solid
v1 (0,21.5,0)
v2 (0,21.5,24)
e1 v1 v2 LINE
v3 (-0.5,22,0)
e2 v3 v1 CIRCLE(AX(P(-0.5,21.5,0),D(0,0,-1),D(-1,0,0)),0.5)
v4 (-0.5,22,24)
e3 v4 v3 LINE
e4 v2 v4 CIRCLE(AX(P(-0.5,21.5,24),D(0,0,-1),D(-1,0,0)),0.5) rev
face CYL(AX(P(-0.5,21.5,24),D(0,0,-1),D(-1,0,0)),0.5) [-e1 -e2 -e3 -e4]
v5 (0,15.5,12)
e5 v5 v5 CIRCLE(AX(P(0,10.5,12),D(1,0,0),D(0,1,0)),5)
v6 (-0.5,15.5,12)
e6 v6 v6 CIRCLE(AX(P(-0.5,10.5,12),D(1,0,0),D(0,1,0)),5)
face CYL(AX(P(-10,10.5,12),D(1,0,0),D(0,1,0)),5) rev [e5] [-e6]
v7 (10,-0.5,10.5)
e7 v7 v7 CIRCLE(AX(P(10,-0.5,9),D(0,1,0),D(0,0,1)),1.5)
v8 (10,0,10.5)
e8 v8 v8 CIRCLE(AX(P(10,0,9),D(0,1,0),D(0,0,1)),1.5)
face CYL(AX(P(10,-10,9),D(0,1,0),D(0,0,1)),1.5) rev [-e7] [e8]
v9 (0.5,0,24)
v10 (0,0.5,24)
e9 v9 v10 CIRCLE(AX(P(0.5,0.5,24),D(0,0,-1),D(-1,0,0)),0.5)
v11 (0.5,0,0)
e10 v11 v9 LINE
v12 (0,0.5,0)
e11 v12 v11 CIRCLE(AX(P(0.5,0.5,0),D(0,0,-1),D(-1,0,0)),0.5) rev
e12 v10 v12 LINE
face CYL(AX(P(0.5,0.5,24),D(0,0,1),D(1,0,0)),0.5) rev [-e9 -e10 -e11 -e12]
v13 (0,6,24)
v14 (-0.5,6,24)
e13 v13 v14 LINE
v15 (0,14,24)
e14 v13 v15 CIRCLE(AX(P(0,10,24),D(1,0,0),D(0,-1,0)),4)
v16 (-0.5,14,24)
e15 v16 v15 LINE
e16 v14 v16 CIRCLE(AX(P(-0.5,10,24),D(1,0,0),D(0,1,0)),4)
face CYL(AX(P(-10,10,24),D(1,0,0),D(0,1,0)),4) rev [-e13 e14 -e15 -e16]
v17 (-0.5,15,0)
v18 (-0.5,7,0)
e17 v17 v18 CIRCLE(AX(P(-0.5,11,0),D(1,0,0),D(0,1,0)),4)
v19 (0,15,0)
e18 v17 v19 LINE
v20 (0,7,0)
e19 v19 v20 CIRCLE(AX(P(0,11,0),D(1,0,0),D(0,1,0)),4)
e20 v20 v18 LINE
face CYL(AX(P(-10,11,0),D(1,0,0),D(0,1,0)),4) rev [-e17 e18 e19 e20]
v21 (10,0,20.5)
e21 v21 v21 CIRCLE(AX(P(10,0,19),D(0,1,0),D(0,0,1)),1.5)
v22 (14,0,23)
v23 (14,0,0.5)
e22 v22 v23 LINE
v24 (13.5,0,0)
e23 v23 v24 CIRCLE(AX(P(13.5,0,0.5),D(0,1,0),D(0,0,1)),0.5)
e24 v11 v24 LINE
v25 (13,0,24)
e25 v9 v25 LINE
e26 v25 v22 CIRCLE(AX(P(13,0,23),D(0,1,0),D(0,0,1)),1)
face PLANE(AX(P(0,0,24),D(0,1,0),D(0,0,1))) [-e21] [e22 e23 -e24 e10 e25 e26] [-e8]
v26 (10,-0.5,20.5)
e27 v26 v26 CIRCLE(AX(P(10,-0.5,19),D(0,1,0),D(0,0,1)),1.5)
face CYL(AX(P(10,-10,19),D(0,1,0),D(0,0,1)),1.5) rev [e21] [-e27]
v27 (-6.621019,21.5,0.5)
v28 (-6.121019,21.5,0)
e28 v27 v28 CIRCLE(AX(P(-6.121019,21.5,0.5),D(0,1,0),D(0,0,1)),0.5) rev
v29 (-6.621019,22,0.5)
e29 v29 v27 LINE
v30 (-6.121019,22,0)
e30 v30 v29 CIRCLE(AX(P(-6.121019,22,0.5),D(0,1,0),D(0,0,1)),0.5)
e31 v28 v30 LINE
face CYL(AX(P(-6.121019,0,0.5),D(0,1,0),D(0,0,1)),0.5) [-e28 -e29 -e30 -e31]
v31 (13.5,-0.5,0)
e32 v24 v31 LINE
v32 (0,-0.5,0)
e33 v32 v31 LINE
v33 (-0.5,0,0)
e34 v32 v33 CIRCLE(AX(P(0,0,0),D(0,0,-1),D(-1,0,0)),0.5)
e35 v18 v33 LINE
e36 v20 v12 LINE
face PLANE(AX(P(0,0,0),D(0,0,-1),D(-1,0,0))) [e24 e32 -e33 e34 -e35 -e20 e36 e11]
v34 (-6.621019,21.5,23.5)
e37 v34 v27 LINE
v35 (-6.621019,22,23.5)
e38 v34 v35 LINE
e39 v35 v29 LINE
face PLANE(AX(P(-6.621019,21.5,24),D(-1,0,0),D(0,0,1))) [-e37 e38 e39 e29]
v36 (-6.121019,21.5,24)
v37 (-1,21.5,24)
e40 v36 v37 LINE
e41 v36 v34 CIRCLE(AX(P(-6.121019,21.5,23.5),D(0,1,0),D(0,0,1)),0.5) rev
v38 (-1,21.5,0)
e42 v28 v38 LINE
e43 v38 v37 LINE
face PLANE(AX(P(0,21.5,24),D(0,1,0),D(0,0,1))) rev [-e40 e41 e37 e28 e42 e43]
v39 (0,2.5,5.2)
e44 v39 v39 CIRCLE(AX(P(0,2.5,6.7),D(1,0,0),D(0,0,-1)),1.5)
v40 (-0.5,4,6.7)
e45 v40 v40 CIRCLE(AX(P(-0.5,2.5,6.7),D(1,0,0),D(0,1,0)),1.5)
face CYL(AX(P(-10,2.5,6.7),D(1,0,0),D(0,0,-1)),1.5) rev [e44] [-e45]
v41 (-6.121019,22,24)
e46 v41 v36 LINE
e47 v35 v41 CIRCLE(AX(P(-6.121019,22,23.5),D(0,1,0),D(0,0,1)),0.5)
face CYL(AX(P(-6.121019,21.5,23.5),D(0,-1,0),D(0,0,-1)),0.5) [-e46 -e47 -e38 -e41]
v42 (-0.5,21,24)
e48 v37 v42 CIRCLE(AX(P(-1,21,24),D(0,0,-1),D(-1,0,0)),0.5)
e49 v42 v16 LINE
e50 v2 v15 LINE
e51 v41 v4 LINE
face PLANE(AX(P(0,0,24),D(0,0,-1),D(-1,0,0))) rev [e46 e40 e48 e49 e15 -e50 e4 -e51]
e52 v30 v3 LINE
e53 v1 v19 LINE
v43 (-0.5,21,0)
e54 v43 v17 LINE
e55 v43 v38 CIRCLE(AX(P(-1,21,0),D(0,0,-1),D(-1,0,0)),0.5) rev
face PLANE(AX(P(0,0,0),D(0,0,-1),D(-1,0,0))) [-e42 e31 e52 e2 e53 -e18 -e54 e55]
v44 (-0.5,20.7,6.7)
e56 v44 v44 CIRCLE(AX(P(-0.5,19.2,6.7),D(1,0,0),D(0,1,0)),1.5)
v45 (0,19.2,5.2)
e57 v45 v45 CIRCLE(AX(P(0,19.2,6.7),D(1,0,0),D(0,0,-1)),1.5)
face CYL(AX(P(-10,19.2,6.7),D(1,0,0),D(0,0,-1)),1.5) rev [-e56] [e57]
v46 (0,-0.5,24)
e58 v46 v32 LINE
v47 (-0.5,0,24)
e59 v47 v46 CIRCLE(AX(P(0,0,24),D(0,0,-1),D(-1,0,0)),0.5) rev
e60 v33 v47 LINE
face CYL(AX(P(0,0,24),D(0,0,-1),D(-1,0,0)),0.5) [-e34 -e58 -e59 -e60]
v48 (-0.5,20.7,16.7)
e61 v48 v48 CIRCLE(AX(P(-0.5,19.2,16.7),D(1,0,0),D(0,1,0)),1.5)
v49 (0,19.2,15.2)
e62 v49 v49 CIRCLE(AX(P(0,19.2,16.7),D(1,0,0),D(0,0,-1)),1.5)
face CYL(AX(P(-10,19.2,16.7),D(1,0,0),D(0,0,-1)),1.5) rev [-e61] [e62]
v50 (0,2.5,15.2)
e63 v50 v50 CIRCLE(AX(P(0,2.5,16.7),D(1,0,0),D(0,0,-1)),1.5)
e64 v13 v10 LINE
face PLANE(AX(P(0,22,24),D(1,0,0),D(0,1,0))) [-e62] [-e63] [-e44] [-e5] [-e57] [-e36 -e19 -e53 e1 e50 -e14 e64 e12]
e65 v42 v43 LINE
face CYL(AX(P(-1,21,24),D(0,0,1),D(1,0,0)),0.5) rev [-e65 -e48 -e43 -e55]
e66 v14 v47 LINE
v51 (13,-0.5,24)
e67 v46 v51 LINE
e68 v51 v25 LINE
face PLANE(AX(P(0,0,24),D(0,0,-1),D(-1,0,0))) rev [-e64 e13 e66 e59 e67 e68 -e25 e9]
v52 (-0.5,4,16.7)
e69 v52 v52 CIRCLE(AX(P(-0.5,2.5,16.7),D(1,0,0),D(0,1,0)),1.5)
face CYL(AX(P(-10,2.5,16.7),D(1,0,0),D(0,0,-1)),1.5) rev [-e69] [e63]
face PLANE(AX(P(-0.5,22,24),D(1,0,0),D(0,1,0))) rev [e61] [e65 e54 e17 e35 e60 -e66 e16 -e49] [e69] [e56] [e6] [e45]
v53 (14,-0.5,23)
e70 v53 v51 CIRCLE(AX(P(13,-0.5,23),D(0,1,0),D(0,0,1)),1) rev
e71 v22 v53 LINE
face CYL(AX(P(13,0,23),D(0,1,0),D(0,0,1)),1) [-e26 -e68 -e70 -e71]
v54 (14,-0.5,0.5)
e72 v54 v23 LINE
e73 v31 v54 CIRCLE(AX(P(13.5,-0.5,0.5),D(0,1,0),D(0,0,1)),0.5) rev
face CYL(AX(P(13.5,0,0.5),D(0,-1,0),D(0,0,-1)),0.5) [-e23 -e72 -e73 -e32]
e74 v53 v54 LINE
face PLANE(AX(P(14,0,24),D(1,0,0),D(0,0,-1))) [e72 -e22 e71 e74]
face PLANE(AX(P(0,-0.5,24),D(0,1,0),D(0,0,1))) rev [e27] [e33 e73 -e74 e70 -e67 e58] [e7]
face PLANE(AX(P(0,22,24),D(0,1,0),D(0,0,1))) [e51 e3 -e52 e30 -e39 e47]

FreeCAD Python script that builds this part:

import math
import FreeCAD as App
import Part
import Sketcher


def edges_at(feature, points):
    """Names of the edges that pass closest to the given points."""
    edges = feature.Shape.Edges
    near = lambda p: min(range(len(edges)), key=lambda i: edges[i].distToShape(Part.Vertex(*p))[0])
    return sorted({f"Edge{near(p) + 1}" for p in points})

doc = App.newDocument("Part")
body = doc.addObject("PartDesign::Body", "Body")

# Sketch on XY plane
sketch1 = body.newObject("Sketcher::SketchObject", "Sketch")
sketch1.AttachmentSupport = (doc.getObject("XY_Plane"), [""])
sketch1.MapMode = "FlatFace"
sketch1.addGeometry(Part.LineSegment(App.Vector(0, 22, 0), App.Vector(-6.6, 22, 0)), False)
sketch1.addGeometry(Part.LineSegment(App.Vector(-6.6, 22, 0), App.Vector(-6.6, 21.5, 0)), False)
sketch1.addGeometry(Part.LineSegment(App.Vector(-6.6, 21.5, 0), App.Vector(-0.5, 21.5, 0)), False)
sketch1.addGeometry(Part.LineSegment(App.Vector(-0.5, 21.5, 0), App.Vector(-0.5, -0.5, 0)), False)
sketch1.addGeometry(Part.LineSegment(App.Vector(-0.5, -0.5, 0), App.Vector(14, -0.5, 0)), False)
sketch1.addGeometry(Part.LineSegment(App.Vector(14, -0.5, 0), App.Vector(14, 0, 0)), False)
sketch1.addGeometry(Part.LineSegment(App.Vector(14, 0, 0), App.Vector(0, 0, 0)), False)
sketch1.addGeometry(Part.LineSegment(App.Vector(0, 0, 0), App.Vector(0, 22, 0)), False)
sketch1.addConstraint(Sketcher.Constraint("Coincident", 0, 2, 1, 1))
sketch1.addConstraint(Sketcher.Constraint("Coincident", 1, 2, 2, 1))
sketch1.addConstraint(Sketcher.Constraint("Coincident", 2, 2, 3, 1))
sketch1.addConstraint(Sketcher.Constraint("Coincident", 3, 2, 4, 1))
sketch1.addConstraint(Sketcher.Constraint("Coincident", 4, 2, 5, 1))
sketch1.addConstraint(Sketcher.Constraint("Coincident", 5, 2, 6, 1))
sketch1.addConstraint(Sketcher.Constraint("Coincident", 6, 2, 7, 1))
sketch1.addConstraint(Sketcher.Constraint("Coincident", 7, 2, 0, 1))
sketch1.addConstraint(Sketcher.Constraint("Horizontal", 0))
sketch1.addConstraint(Sketcher.Constraint("Vertical", 1))
sketch1.addConstraint(Sketcher.Constraint("Horizontal", 2))
sketch1.addConstraint(Sketcher.Constraint("Vertical", 3))
sketch1.addConstraint(Sketcher.Constraint("Horizontal", 4))
sketch1.addConstraint(Sketcher.Constraint("Vertical", 5))
sketch1.addConstraint(Sketcher.Constraint("Horizontal", 6))
sketch1.addConstraint(Sketcher.Constraint("Vertical", 7))
sketch1.addConstraint(Sketcher.Constraint("Coincident", 6, 2, -1, 1))
sketch1.addConstraint(Sketcher.Constraint("Equal", 1, 5))
sketch1.addConstraint(Sketcher.Constraint("DistanceX", 6, 2, 6, 1, 14.0))
sketch1.addConstraint(Sketcher.Constraint("DistanceY", 3, 2, 3, 1, 22.0))
sketch1.addConstraint(Sketcher.Constraint("DistanceX", 4, 1, 4, 2, 14.5))
sketch1.addConstraint(Sketcher.Constraint("DistanceY", 1, 2, 1, 1, 0.5))
sketch1.addConstraint(Sketcher.Constraint("DistanceX", 0, 2, 0, 1, 6.621019))
pad1 = body.newObject("PartDesign::Pad", "Pad")
pad1.Profile = sketch1
pad1.Length = 24

# Sketch on XZ plane
sketch2 = body.newObject("Sketcher::SketchObject", "Sketch001")
sketch2.AttachmentSupport = (doc.getObject("XZ_Plane"), [""])
sketch2.MapMode = "FlatFace"
sketch2.addGeometry(Part.Circle(App.Vector(10, 19, 0), App.Vector(0, 0, 1), 1.5), False)
sketch2.addGeometry(Part.Circle(App.Vector(10, 9, 0), App.Vector(0, 0, 1), 1.5), False)
sketch2.addConstraint(Sketcher.Constraint("Equal", 0, 1))
sketch2.addConstraint(Sketcher.Constraint("Vertical", 0, 3, 1, 3))
sketch2.addConstraint(Sketcher.Constraint("Diameter", 0, 3.0))
sketch2.addConstraint(Sketcher.Constraint("DistanceX", -1, 1, 0, 3, 10.0))
sketch2.addConstraint(Sketcher.Constraint("DistanceY", -1, 1, 0, 3, 19.0))
sketch2.addConstraint(Sketcher.Constraint("DistanceY", -1, 1, 1, 3, 9.0))
pocket1 = body.newObject("PartDesign::Pocket", "Pocket")
pocket1.Profile = sketch2
pocket1.Length = 10
pocket1.Reversed = True

# Sketch on YZ plane
sketch3 = body.newObject("Sketcher::SketchObject", "Sketch002")
sketch3.AttachmentSupport = (doc.getObject("YZ_Plane"), [""])
sketch3.MapMode = "FlatFace"
sketch3.addGeometry(Part.Circle(App.Vector(19.2, 16.7, 0), App.Vector(0, 0, 1), 1.5), False)
sketch3.addGeometry(Part.Circle(App.Vector(2.5, 16.7, 0), App.Vector(0, 0, 1), 1.5), False)
sketch3.addGeometry(Part.Circle(App.Vector(19.2, 6.7, 0), App.Vector(0, 0, 1), 1.5), False)
sketch3.addGeometry(Part.Circle(App.Vector(2.5, 6.7, 0), App.Vector(0, 0, 1), 1.5), False)
sketch3.addConstraint(Sketcher.Constraint("Equal", 0, 1))
sketch3.addConstraint(Sketcher.Constraint("Equal", 1, 2))
sketch3.addConstraint(Sketcher.Constraint("Equal", 2, 3))
sketch3.addConstraint(Sketcher.Constraint("Horizontal", 0, 3, 1, 3))
sketch3.addConstraint(Sketcher.Constraint("Horizontal", 2, 3, 3, 3))
sketch3.addConstraint(Sketcher.Constraint("Vertical", 0, 3, 2, 3))
sketch3.addConstraint(Sketcher.Constraint("Vertical", 1, 3, 3, 3))
sketch3.addConstraint(Sketcher.Constraint("Diameter", 0, 3.0))
sketch3.addConstraint(Sketcher.Constraint("DistanceY", 2, 3, 0, 3, 10.0))
sketch3.addConstraint(Sketcher.Constraint("DistanceX", -1, 1, 0, 3, 19.2))
sketch3.addConstraint(Sketcher.Constraint("DistanceY", -1, 1, 0, 3, 16.7))
sketch3.addConstraint(Sketcher.Constraint("DistanceX", -1, 1, 1, 3, 2.5))
pocket2 = body.newObject("PartDesign::Pocket", "Pocket001")
pocket2.Profile = sketch3
pocket2.Length = 10
doc.recompute()

fillet = body.newObject("PartDesign::Fillet", "Fillet")
fillet.Base = (pocket2, edges_at(pocket2, [(14, -0.25, 24)]))
fillet.Radius = 1
doc.recompute()

fillet2 = body.newObject("PartDesign::Fillet", "Fillet001")
fillet2.Base = (fillet, edges_at(fillet, [
    (-0.5, -0.5, 12),
    (-0.5, 21.5, 12),
    (0, 0, 12),
    (-6.621, 21.75, 24),
    (-6.621, 21.75, 0),
    (14, -0.25, 0),
]))
fillet2.Radius = 0.5
doc.recompute()

fillet3 = body.newObject("PartDesign::Fillet", "Fillet002")
fillet3.Base = (fillet2, edges_at(fillet2, [(0, 22, 12)]))
fillet3.Radius = 0.5

# Sketch on YZ plane
sketch4 = body.newObject("Sketcher::SketchObject", "Sketch003")
sketch4.AttachmentSupport = (doc.getObject("YZ_Plane"), [""])
sketch4.MapMode = "FlatFace"
sketch4.addGeometry(Part.Circle(App.Vector(10, 12, 0), App.Vector(0, 0, 1), 5), False)
sketch4.addConstraint(Sketcher.Constraint("Diameter", 0, 10.0))
sketch4.addConstraint(Sketcher.Constraint("DistanceY", -1, 1, 0, 3, 12.0))
sketch4.addConstraint(Sketcher.Constraint("DistanceX", -1, 1, 0, 3, 10.5))
pocket3 = body.newObject("PartDesign::Pocket", "Pocket002")
pocket3.Profile = sketch4
pocket3.Length = 10

# Sketch on YZ plane
sketch5 = body.newObject("Sketcher::SketchObject", "Sketch004")
sketch5.AttachmentSupport = (doc.getObject("YZ_Plane"), [""])
sketch5.MapMode = "FlatFace"
sketch5.addGeometry(Part.LineSegment(App.Vector(7, 0, 0), App.Vector(15, 0, 0)), False)
sketch5.addGeometry(Part.ArcOfCircle(Part.Circle(App.Vector(11, 0, 0), App.Vector(0, 0, 1), 4), math.radians(0), math.radians(180)), False)
sketch5.addGeometry(Part.LineSegment(App.Vector(14, 24, 0), App.Vector(6, 24, 0)), False)
sketch5.addGeometry(Part.ArcOfCircle(Part.Circle(App.Vector(10, 24, 0), App.Vector(0, 0, 1), 4), math.radians(180), math.radians(360)), False)
sketch5.addConstraint(Sketcher.Constraint("Coincident", 0, 1, 1, 2))
sketch5.addConstraint(Sketcher.Constraint("Coincident", 1, 1, 0, 2))
sketch5.addConstraint(Sketcher.Constraint("Coincident", 2, 1, 3, 2))
sketch5.addConstraint(Sketcher.Constraint("Coincident", 3, 1, 2, 2))
sketch5.addConstraint(Sketcher.Constraint("Horizontal", 0))
sketch5.addConstraint(Sketcher.Constraint("Horizontal", 2))
sketch5.addConstraint(Sketcher.Constraint("Equal", 1, 3))
sketch5.addConstraint(Sketcher.Constraint("PointOnObject", 1, 3, -1))
sketch5.addConstraint(Sketcher.Constraint("PointOnObject", 0, 1, -1))
sketch5.addConstraint(Sketcher.Constraint("Horizontal", 3, 3, 2, 1))
sketch5.addConstraint(Sketcher.Constraint("Radius", 1, 4.0))
sketch5.addConstraint(Sketcher.Constraint("DistanceX", -1, 1, 1, 3, 11.0))
sketch5.addConstraint(Sketcher.Constraint("DistanceX", -1, 1, 3, 3, 10.0))
sketch5.addConstraint(Sketcher.Constraint("DistanceY", -1, 1, 3, 3, 24.0))
pocket4 = body.newObject("PartDesign::Pocket", "Pocket003")
pocket4.Profile = sketch5
pocket4.Length = 10

doc.recompute()
